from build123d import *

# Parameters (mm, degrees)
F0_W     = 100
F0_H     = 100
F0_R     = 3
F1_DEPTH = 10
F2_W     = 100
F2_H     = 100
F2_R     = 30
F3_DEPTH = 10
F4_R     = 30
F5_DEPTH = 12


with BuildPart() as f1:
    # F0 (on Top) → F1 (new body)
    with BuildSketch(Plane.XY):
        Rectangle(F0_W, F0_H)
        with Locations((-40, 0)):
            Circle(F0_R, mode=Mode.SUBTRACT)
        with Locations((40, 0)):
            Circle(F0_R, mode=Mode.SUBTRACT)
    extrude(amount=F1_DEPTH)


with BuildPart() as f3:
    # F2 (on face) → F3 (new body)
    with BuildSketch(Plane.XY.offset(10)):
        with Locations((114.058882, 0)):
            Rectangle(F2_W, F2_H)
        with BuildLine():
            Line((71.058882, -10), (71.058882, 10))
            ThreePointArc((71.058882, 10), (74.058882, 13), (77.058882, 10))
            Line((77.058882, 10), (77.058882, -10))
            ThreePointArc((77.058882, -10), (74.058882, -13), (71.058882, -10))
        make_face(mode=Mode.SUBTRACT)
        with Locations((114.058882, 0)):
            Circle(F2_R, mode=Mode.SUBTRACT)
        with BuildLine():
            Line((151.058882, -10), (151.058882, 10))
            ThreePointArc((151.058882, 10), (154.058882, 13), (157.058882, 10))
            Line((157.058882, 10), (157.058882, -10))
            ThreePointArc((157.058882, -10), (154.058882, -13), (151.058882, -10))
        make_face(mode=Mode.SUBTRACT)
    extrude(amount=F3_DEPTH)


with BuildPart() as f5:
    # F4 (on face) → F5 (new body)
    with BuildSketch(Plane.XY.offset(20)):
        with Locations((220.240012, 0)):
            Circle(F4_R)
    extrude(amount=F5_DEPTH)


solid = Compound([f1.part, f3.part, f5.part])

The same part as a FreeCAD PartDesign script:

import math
import FreeCAD as App
import Part
import Sketcher
from FreeCAD import Vector


def add_polygon(sketch, points):
    """Adds a closed chain of lines whose ends are joined by coincident constraints."""
    first, n = sketch.GeometryCount, len(points)
    for a, b in zip(points, points[1:] + points[:1]):
        sketch.addGeometry(Part.LineSegment(App.Vector(*a, 0), App.Vector(*b, 0)), False)
    for i in range(n):
        sketch.addConstraint(Sketcher.Constraint("Coincident", first + i, 2, first + (i + 1) % n, 1))

doc = App.newDocument("Part")
body = doc.addObject("PartDesign::Body", "Body")

# Sketch on XY plane
sketch1 = body.newObject("Sketcher::SketchObject", "Sketch")
sketch1.AttachmentSupport = (doc.getObject("XY_Plane"), [""])
sketch1.MapMode = "FlatFace"
add_polygon(sketch1, [(-50, 50), (-50, -50), (50, -50), (50, 50)])  # lines 0-3
sketch1.addGeometry(Part.Circle(Vector(-40, 0, 0), Vector(0, 0, 1), 3), False)  # 4
sketch1.addGeometry(Part.Circle(Vector(40, 0, 0), Vector(0, 0, 1), 3), False)  # 5
sketch1.addConstraint([
    Sketcher.Constraint("Vertical", 0),
    Sketcher.Constraint("Horizontal", 1),
    Sketcher.Constraint("Vertical", 2),
    Sketcher.Constraint("Horizontal", 3),
    Sketcher.Constraint("Equal", 4, 5),
    Sketcher.Constraint("Symmetric", 4, 3, 5, 3, -1, 1),
    Sketcher.Constraint("Symmetric", 0, 2, 2, 2, -1, 1),
    Sketcher.Constraint("PointOnObject", 4, 3, -1),
    Sketcher.Constraint("Equal", 3, 0),
    Sketcher.Constraint("Diameter", 4, 6.0),
    Sketcher.Constraint("DistanceX", 1, 1, 1, 2, 100.0),
    Sketcher.Constraint("DistanceX", 4, 3, -1, 1, 40.0),
])
pad1 = body.newObject("PartDesign::Pad", "Pad")
pad1.Profile = sketch1
pad1.Length = 10
body2 = doc.addObject("PartDesign::Body", "Body001")

# Sketch on XY plane
sketch2 = body2.newObject("Sketcher::SketchObject", "Sketch001")
sketch2.AttachmentSupport = (doc.getObject("XY_Plane001"), [""])
sketch2.MapMode = "FlatFace"
sketch2.AttachmentOffset = App.Placement(Vector(0, 0, 10), App.Rotation())
add_polygon(sketch2, [(64.1, 50), (64.1, -50), (164.1, -50), (164.1, 50)])  # lines 0-3
sketch2.addGeometry(Part.ArcOfCircle(Part.Circle(Vector(74.1, -10, 0), Vector(0, 0, 1), 3), math.radians(180), math.radians(360)), False)  # 4
sketch2.addGeometry(Part.LineSegment(Vector(71.1, -10, 0), Vector(71.1, 10, 0)), False)  # 5
sketch2.addGeometry(Part.ArcOfCircle(Part.Circle(Vector(74.1, 10, 0), Vector(0, 0, 1), 3), math.radians(0), math.radians(180)), False)  # 6
sketch2.addGeometry(Part.LineSegment(Vector(77.1, 10, 0), Vector(77.1, -10, 0)), False)  # 7
sketch2.addGeometry(Part.Circle(Vector(114.1, 0, 0), Vector(0, 0, 1), 30), False)  # 8
sketch2.addGeometry(Part.ArcOfCircle(Part.Circle(Vector(154.1, -10, 0), Vector(0, 0, 1), 3), math.radians(180), math.radians(360)), False)  # 9
sketch2.addGeometry(Part.LineSegment(Vector(151.1, -10, 0), Vector(151.1, 10, 0)), False)  # 10
sketch2.addGeometry(Part.ArcOfCircle(Part.Circle(Vector(154.1, 10, 0), Vector(0, 0, 1), 3), math.radians(0), math.radians(180)), False)  # 11
sketch2.addGeometry(Part.LineSegment(Vector(157.1, 10, 0), Vector(157.1, -10, 0)), False)  # 12
sketch2.addConstraint([
    Sketcher.Constraint("Tangent", 4, 1, 5, 1),
    Sketcher.Constraint("Tangent", 5, 2, 6, 2),
    Sketcher.Constraint("Tangent", 6, 1, 7, 1),
    Sketcher.Constraint("Tangent", 7, 2, 4, 2),
    Sketcher.Constraint("Tangent", 9, 1, 10, 1),
    Sketcher.Constraint("Tangent", 10, 2, 11, 2),
    Sketcher.Constraint("Tangent", 11, 1, 12, 1),
    Sketcher.Constraint("Tangent", 12, 2, 9, 2),
    Sketcher.Constraint("Vertical", 0),
    Sketcher.Constraint("Horizontal", 1),
    Sketcher.Constraint("Vertical", 2),
    Sketcher.Constraint("Horizontal", 3),
    Sketcher.Constraint("Vertical", 5),
    Sketcher.Constraint("Vertical", 7),
    Sketcher.Constraint("Vertical", 10),
    Sketcher.Constraint("Vertical", 12),
    Sketcher.Constraint("Equal", 6, 9),
    Sketcher.Constraint("PointOnObject", 8, 3, -1),
    Sketcher.Constraint("Horizontal", 4, 3, 9, 3),
    Sketcher.Constraint("Horizontal", 6, 3, 11, 3),
    Sketcher.Constraint("Equal", 3, 0),
    Sketcher.Constraint("Diameter", 8, 60.0),
    Sketcher.Constraint("Radius", 4, 3.0),
    Sketcher.Constraint("DistanceX", 1, 1, 1, 2, 100.0),
    Sketcher.Constraint("DistanceY", 5, 1, 5, 2, 20.0),
    Sketcher.Constraint("DistanceY", 4, 3, -1, 1, 10.0),
    Sketcher.Constraint("DistanceY", 0, 2, -1, 1, 50.0),
    Sketcher.Constraint("DistanceX", 4, 3, 8, 3, 40.0),
    Sketcher.Constraint("DistanceX", 8, 3, 9, 3, 40.0),
    Sketcher.Constraint("DistanceX", 0, 2, 4, 3, 10.0),
    Sketcher.Constraint("DistanceX", -1, 1, 4, 3, 74.058882),
])
pad2 = body2.newObject("PartDesign::Pad", "Pad001")
pad2.Profile = sketch2
pad2.Length = 10
body3 = doc.addObject("PartDesign::Body", "Body002")

# Sketch on XY plane
sketch3 = body3.newObject("Sketcher::SketchObject", "Sketch002")
sketch3.AttachmentSupport = (doc.getObject("XY_Plane002"), [""])
sketch3.MapMode = "FlatFace"
sketch3.AttachmentOffset = App.Placement(Vector(0, 0, 20), App.Rotation())
sketch3.addGeometry(Part.Circle(Vector(220, 0, 0), Vector(0, 0, 1), 30), False)
sketch3.addConstraint([
    Sketcher.Constraint("PointOnObject", 0, 3, -1),
    Sketcher.Constraint("Diameter", 0, 60.0),
    Sketcher.Constraint("DistanceX", -1, 1, 0, 3, 220.240012),
])
pad3 = body3.newObject("PartDesign::Pad", "Pad002")
pad3.Profile = sketch3
pad3.Length = 12

doc.recompute()
